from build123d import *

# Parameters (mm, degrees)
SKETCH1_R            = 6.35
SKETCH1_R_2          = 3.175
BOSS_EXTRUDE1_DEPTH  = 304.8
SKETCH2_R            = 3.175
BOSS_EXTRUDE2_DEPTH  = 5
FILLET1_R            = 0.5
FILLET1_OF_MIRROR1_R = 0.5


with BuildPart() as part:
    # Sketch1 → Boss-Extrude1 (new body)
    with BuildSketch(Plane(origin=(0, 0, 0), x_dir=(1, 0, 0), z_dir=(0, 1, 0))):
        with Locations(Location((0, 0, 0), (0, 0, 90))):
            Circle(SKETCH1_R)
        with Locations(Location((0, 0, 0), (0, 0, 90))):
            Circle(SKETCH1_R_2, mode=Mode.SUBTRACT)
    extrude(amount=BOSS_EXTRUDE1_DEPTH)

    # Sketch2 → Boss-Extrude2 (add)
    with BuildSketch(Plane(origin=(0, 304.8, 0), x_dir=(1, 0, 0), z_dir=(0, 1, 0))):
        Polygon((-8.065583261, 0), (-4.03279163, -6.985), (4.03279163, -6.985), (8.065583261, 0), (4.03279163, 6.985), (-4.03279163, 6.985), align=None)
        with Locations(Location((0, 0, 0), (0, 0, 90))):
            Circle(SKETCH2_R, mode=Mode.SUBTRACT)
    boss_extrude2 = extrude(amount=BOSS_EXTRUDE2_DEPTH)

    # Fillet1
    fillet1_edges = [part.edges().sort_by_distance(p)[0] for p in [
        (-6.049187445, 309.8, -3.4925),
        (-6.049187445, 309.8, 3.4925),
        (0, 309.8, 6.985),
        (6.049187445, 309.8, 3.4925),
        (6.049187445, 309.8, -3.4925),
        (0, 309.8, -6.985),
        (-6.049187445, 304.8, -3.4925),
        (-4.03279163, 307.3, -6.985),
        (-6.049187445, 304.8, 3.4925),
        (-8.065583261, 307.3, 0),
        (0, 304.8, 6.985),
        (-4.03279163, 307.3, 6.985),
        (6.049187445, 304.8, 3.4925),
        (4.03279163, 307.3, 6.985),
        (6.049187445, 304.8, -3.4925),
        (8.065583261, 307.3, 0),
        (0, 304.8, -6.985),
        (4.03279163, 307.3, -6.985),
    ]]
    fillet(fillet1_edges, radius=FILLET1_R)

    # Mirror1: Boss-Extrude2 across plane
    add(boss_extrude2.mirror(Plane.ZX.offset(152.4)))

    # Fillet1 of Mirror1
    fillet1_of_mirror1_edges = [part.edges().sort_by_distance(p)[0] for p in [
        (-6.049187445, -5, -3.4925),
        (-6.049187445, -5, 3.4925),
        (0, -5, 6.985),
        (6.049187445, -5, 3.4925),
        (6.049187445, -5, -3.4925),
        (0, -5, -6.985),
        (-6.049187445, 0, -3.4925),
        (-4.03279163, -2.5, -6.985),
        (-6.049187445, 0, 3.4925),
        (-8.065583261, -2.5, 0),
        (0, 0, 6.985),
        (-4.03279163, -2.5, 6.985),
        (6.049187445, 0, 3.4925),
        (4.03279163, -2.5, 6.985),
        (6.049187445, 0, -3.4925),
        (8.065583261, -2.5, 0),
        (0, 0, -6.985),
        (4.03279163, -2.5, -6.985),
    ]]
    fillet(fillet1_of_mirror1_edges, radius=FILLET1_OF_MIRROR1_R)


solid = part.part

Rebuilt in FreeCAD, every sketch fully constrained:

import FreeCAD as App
import Part
import Sketcher
Q = App.Units.Quantity


def edges_at(feature, points):
    """Names of the edges that pass closest to the given points."""
    edges = feature.Shape.Edges
    near = lambda p: min(range(len(edges)), key=lambda i: edges[i].distToShape(Part.Vertex(*p))[0])
    return sorted({f"Edge{near(p) + 1}" for p in points})

doc = App.newDocument("Part")
body = doc.addObject("PartDesign::Body", "Body")

# Sketch on XZ plane
sketch1 = body.newObject("Sketcher::SketchObject", "Sketch")
sketch1.AttachmentSupport = (doc.getObject("XZ_Plane"), [""])
sketch1.MapMode = "FlatFace"
sketch1.addGeometry(Part.Circle(App.Vector(0, 0, 0), App.Vector(0, 0, 1), 6.3), False)
sketch1.addGeometry(Part.Circle(App.Vector(0, 0, 0), App.Vector(0, 0, 1), 3.2), False)
sketch1.addConstraint(Sketcher.Constraint("Coincident", 0, 3, -1, 1))
sketch1.addConstraint(Sketcher.Constraint("Coincident", 1, 3, -1, 1))
sketch1.addConstraint(Sketcher.Constraint("Diameter", 0, Q("0.5 in")))
sketch1.addConstraint(Sketcher.Constraint("Diameter", 1, Q("0.25 in")))
pad1 = body.newObject("PartDesign::Pad", "Pad")
pad1.Profile = sketch1
pad1.Length = Q("12 in")
pad1.Reversed = True

# Sketch on XZ plane
sketch2 = body.newObject("Sketcher::SketchObject", "Sketch001")
sketch2.AttachmentSupport = (doc.getObject("XZ_Plane"), [""])
sketch2.MapMode = "FlatFace"
sketch2.AttachmentOffset = App.Placement(App.Vector(0, 0, -12 * 25.4), App.Rotation())
sketch2.addGeometry(Part.LineSegment(App.Vector(-8.1, 0, 0), App.Vector(-4, 7, 0)), False)
sketch2.addGeometry(Part.LineSegment(App.Vector(-4, 7, 0), App.Vector(4, 7, 0)), False)
sketch2.addGeometry(Part.LineSegment(App.Vector(4, 7, 0), App.Vector(8.1, 0, 0)), False)
sketch2.addGeometry(Part.LineSegment(App.Vector(8.1, 0, 0), App.Vector(4, -7, 0)), False)
sketch2.addGeometry(Part.LineSegment(App.Vector(4, -7, 0), App.Vector(-4, -7, 0)), False)
sketch2.addGeometry(Part.LineSegment(App.Vector(-4, -7, 0), App.Vector(-8.1, 0, 0)), False)
sketch2.addGeometry(Part.Circle(App.Vector(0, 0, 0), App.Vector(0, 0, 1), 3.2), False)
sketch2.addConstraint(Sketcher.Constraint("Coincident", 0, 2, 1, 1))
sketch2.addConstraint(Sketcher.Constraint("Coincident", 1, 2, 2, 1))
sketch2.addConstraint(Sketcher.Constraint("Coincident", 2, 2, 3, 1))
sketch2.addConstraint(Sketcher.Constraint("Coincident", 3, 2, 4, 1))
sketch2.addConstraint(Sketcher.Constraint("Coincident", 4, 2, 5, 1))
sketch2.addConstraint(Sketcher.Constraint("Coincident", 5, 2, 0, 1))
sketch2.addConstraint(Sketcher.Constraint("Horizontal", 1))
sketch2.addConstraint(Sketcher.Constraint("Horizontal", 4))
sketch2.addConstraint(Sketcher.Constraint("Coincident", 6, 3, -1, 1))
sketch2.addConstraint(Sketcher.Constraint("Symmetric", 0, 2, 3, 2, -1, 1))
sketch2.addConstraint(Sketcher.Constraint("Symmetric", 2, 2, 5, 2, -1, 1))
sketch2.addConstraint(Sketcher.Constraint("PointOnObject", 2, 2, -1))
sketch2.addConstraint(Sketcher.Constraint("Parallel", 2, 5))
sketch2.addConstraint(Sketcher.Constraint("Vertical", 1, 2, 3, 2))
sketch2.addConstraint(Sketcher.Constraint("Diameter", 6, Q("0.25 in")))
sketch2.addConstraint(Sketcher.Constraint("Angle", 0, Q("60 deg")))
sketch2.addConstraint(Sketcher.Constraint("DistanceY", 3, 2, 1, 2, Q("0.55 in")))
sketch2.addConstraint(Sketcher.Constraint("DistanceX", 1, 1, 1, 2, Q("8.065583 mm")))
pad2 = body.newObject("PartDesign::Pad", "Pad001")
pad2.Profile = sketch2
pad2.Length = 5
pad2.Reversed = True
doc.recompute()

fillet = body.newObject("PartDesign::Fillet", "Fillet")
fillet.Base = (pad2, edges_at(pad2, [
    (-6.049, 309.8, -3.493),
    (-6.049, 309.8, 3.493),
    (0, 309.8, 6.985),
    (6.049, 309.8, 3.493),
    (6.049, 309.8, -3.493),
    (0, 309.8, -6.985),
    (-6.049, 304.8, -3.493),
    (-4.033, 307.3, -6.985),
    (-6.049, 304.8, 3.493),
    (-8.066, 307.3, 0),
    (0, 304.8, 6.985),
    (-4.033, 307.3, 6.985),
    (6.049, 304.8, 3.493),
    (4.033, 307.3, 6.985),
    (6.049, 304.8, -3.493),
    (8.066, 307.3, 0),
    (0, 304.8, -6.985),
    (4.033, 307.3, -6.985),
]))
fillet.Radius = 0.5
doc.recompute()

datumplane = body.newObject("PartDesign::Plane", "DatumPlane")
datumplane.AttachmentSupport = (doc.getObject("XZ_Plane"), [""])
datumplane.MapMode = "FlatFace"
datumplane.AttachmentOffset = App.Placement(App.Vector(0, 0, -6 * 25.4), App.Rotation())
mirrored = body.newObject("PartDesign::Mirrored", "Mirrored")
mirrored.Originals = [pad2]
mirrored.MirrorPlane = (datumplane, [""])
body.Tip = mirrored
doc.recompute()

fillet2 = body.newObject("PartDesign::Fillet", "Fillet001")
fillet2.Base = (mirrored, edges_at(mirrored, [
    (-6.049, -5, -3.493),
    (-6.049, -5, 3.493),
    (0, -5, 6.985),
    (6.049, -5, 3.493),
    (6.049, -5, -3.493),
    (0, -5, -6.985),
    (-6.049, 0, -3.493),
    (-4.033, -2.5, -6.985),
    (-6.049, 0, 3.493),
    (-8.066, -2.5, 0),
    (0, 0, 6.985),
    (-4.033, -2.5, 6.985),
    (6.049, 0, 3.493),
    (4.033, -2.5, 6.985),
    (6.049, 0, -3.493),
    (8.066, -2.5, 0),
    (0, 0, -6.985),
    (4.033, -2.5, -6.985),
]))
fillet2.Radius = 0.5

doc.recompute()
